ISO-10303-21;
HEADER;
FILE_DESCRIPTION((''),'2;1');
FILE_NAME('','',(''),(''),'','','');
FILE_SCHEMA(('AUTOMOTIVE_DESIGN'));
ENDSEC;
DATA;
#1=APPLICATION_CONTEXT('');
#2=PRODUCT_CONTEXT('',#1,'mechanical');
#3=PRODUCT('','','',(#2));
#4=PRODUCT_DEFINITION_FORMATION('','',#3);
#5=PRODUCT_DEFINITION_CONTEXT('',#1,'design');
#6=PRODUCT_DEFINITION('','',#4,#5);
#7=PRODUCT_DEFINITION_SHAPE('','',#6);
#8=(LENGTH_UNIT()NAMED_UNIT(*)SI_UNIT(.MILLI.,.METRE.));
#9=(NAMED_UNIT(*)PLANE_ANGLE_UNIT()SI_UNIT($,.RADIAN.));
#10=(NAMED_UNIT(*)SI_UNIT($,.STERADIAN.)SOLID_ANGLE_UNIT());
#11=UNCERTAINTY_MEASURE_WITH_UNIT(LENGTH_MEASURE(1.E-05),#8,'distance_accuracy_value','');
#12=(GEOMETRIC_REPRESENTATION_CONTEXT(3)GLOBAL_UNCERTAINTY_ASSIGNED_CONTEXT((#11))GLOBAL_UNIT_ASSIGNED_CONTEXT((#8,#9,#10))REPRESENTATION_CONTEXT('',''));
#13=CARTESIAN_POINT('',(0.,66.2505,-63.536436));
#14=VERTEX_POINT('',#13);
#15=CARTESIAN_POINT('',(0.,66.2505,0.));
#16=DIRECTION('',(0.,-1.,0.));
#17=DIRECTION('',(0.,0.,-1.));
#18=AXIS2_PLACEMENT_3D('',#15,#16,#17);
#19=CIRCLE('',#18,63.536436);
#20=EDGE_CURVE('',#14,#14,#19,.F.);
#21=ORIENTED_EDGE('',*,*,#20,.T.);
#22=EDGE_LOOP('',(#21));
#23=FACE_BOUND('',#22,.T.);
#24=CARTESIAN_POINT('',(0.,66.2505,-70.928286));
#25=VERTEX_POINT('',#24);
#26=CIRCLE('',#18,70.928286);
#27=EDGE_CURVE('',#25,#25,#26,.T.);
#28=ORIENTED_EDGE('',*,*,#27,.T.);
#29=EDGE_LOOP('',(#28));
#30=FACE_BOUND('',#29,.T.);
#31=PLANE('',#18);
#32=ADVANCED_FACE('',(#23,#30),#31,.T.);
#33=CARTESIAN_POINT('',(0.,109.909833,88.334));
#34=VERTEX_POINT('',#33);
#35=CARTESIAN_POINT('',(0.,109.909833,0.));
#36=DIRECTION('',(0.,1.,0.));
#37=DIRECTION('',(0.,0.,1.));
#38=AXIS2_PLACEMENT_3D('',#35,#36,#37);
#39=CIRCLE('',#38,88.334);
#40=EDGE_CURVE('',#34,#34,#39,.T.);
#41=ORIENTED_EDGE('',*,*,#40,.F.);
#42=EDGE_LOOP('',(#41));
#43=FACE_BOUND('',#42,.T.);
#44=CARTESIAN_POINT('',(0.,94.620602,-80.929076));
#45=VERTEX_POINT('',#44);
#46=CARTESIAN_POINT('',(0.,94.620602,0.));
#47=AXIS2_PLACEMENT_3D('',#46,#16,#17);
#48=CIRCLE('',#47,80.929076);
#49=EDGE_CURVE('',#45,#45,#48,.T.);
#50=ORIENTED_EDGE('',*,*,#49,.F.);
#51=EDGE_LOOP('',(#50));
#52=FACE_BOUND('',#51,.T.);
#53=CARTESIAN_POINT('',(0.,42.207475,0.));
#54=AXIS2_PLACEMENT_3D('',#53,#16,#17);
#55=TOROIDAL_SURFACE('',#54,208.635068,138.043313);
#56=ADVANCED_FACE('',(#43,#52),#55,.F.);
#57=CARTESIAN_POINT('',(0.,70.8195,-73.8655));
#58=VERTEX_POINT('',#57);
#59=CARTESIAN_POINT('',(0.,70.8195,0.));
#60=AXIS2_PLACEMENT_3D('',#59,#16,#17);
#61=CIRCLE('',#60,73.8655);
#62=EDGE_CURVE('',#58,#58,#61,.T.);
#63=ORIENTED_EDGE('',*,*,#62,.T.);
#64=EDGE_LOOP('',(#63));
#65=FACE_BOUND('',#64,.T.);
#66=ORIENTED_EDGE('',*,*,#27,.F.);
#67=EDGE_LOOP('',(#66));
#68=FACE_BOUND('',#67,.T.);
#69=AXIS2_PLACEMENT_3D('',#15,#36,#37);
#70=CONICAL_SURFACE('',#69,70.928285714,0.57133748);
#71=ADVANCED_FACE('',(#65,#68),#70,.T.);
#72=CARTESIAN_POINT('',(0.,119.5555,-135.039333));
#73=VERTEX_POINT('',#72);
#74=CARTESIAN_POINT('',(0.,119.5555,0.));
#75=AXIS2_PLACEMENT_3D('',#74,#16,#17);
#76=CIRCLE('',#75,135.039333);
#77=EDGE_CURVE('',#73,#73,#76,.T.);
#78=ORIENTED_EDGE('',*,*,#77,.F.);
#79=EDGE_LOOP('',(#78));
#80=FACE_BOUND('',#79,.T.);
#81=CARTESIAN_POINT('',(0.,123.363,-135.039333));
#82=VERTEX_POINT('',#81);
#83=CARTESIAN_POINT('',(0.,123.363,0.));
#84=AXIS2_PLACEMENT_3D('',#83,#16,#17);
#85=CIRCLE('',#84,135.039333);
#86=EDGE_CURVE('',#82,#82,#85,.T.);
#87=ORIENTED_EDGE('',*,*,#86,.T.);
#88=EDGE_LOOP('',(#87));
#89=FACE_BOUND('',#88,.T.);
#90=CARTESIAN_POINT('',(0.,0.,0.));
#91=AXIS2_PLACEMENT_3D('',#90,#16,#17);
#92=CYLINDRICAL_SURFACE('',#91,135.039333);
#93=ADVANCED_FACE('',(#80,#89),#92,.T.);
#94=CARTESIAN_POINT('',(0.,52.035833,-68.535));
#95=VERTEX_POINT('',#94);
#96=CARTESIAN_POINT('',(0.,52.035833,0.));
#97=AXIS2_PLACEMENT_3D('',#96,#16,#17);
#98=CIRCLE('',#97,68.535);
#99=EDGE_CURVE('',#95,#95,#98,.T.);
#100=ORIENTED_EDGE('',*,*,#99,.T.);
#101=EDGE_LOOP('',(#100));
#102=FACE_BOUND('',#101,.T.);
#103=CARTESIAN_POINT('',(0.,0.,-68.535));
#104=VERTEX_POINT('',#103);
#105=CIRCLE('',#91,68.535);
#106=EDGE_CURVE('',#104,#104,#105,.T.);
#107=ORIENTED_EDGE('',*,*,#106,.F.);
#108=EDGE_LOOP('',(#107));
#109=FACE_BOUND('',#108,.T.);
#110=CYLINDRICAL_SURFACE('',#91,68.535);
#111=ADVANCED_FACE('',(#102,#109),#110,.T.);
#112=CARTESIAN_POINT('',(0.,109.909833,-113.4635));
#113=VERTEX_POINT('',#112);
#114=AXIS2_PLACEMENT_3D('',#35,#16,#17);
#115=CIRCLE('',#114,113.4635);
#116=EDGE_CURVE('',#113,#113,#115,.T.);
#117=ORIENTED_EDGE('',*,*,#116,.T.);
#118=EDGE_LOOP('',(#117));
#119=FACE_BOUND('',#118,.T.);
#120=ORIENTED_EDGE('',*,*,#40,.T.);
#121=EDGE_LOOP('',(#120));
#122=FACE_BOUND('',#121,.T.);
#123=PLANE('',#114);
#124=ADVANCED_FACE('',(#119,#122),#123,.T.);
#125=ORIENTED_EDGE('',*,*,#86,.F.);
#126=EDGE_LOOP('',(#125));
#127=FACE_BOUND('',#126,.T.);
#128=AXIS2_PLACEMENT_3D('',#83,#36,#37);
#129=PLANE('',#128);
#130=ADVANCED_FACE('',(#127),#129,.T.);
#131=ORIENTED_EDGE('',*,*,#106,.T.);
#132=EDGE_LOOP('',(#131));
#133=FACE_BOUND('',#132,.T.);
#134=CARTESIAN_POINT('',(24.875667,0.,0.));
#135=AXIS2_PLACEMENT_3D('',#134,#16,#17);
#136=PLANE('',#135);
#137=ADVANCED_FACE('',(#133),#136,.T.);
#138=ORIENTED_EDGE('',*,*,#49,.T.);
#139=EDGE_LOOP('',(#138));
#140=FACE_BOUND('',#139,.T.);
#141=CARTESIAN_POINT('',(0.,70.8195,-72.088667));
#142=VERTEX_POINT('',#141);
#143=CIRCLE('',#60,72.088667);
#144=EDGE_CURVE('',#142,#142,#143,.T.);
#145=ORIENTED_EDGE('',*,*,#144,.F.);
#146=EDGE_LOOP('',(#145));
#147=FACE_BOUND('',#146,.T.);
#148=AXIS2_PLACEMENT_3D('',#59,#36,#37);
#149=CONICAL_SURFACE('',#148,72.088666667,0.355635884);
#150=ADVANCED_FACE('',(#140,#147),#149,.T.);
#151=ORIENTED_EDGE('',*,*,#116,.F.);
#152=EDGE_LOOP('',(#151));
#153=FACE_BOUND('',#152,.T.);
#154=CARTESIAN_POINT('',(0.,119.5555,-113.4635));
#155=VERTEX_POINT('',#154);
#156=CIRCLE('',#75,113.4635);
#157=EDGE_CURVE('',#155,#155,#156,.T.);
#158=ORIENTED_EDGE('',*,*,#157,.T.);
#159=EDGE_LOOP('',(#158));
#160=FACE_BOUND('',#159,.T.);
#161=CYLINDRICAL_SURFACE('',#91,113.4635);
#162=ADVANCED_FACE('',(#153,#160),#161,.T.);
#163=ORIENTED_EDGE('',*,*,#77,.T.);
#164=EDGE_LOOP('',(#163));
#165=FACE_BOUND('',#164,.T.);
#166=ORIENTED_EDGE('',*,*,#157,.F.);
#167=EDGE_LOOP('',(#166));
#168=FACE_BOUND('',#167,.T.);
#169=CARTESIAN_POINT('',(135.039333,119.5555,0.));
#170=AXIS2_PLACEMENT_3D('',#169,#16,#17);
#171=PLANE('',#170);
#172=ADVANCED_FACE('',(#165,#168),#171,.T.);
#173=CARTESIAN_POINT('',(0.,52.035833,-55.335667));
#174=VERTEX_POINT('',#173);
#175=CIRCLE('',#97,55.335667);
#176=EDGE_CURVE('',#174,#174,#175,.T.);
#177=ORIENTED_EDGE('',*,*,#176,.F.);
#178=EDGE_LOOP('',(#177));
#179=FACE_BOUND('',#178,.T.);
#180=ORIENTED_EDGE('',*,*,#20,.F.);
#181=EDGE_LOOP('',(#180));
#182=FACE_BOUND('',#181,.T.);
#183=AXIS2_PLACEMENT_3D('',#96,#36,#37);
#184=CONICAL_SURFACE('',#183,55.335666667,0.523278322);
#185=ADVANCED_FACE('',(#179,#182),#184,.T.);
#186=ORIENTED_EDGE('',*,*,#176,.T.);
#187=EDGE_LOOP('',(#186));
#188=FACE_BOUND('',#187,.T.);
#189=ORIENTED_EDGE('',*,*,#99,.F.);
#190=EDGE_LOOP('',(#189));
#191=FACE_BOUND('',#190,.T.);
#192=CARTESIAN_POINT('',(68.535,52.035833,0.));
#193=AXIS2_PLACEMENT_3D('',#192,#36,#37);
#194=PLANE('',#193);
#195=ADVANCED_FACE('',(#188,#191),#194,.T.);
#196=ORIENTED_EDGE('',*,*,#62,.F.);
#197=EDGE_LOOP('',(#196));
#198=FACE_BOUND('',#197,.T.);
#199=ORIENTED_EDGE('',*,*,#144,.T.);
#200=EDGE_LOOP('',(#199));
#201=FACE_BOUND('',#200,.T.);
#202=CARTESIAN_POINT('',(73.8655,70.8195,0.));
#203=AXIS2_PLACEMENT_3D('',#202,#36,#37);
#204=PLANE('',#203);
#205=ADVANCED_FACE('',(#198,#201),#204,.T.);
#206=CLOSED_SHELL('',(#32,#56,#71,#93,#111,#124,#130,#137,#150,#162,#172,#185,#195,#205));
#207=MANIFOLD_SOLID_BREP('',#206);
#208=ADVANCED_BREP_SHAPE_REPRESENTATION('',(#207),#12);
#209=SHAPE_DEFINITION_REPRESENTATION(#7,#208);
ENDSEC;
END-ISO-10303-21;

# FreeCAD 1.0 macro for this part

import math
import FreeCAD as App
import Part
import Sketcher
from FreeCAD import Vector


def add_polygon(sketch, points):
    """Adds a closed chain of lines whose ends are joined by coincident constraints."""
    first, n = sketch.GeometryCount, len(points)
    for a, b in zip(points, points[1:] + points[:1]):
        sketch.addGeometry(Part.LineSegment(App.Vector(*a, 0), App.Vector(*b, 0)), False)
    for i in range(n):
        sketch.addConstraint(Sketcher.Constraint("Coincident", first + i, 2, first + (i + 1) % n, 1))

doc = App.newDocument("Part")
body = doc.addObject("PartDesign::Body", "Body")

sketch1 = body.newObject("Sketcher::SketchObject", "Sketch")
sketch1.AttachmentSupport = (doc.getObject("XY_Plane"), [""])
sketch1.MapMode = "FlatFace"
add_polygon(sketch1, [(69, 0), (69, 52), (55, 52), (64, 66), (0, 66), (0, 0)])
sketch1.addConstraint([
    Sketcher.Constraint("Vertical", 0),
    Sketcher.Constraint("Horizontal", 1),
    Sketcher.Constraint("Horizontal", 3),
    Sketcher.Constraint("Vertical", 4),
    Sketcher.Constraint("Horizontal", 5),
    Sketcher.Constraint("Coincident", 4, 2, -1, 1),
    Sketcher.Constraint("DistanceX", 5, 1, 5, 2, 68.535),
    Sketcher.Constraint("DistanceY", 4, 2, 4, 1, 66.2505),
    Sketcher.Constraint("DistanceX", 1, 2, 1, 1, 13.199333),
    Sketcher.Constraint("DistanceX", 3, 2, 3, 1, 63.536436),
    Sketcher.Constraint("DistanceY", 0, 1, 0, 2, 52.035833),
])
revolution = body.newObject("PartDesign::Revolution", "Revolution")
revolution.Profile = sketch1
revolution.ReferenceAxis = (sketch1, ["V_Axis"])
revolution.Angle = 360

sketch2 = body.newObject("Sketcher::SketchObject", "Sketch001")
sketch2.AttachmentSupport = (doc.getObject("XY_Plane"), [""])
sketch2.MapMode = "FlatFace"
sketch2.addGeometry([
    Part.LineSegment(Vector(72.1, 70.8, 0), Vector(80.9, 94.6, 0)),
    Part.ArcOfCircle(Part.Circle(Vector(208.6, 42.2, 0), Vector(0, 0, 1), 138), math.radians(150.63), math.radians(157.69)),
    Part.LineSegment(Vector(88.3, 109.9, 0), Vector(0, 109.9, 0)),
    Part.LineSegment(Vector(0, 109.9, 0), Vector(0, 66.3, 0)),
    Part.LineSegment(Vector(0, 66.3, 0), Vector(70.9, 66.3, 0)),
    Part.LineSegment(Vector(70.9, 66.3, 0), Vector(73.9, 70.8, 0)),
    Part.LineSegment(Vector(73.9, 70.8, 0), Vector(72.1, 70.8, 0)),
], False)
sketch2.addConstraint([
    Sketcher.Constraint("Coincident", 0, 2, 1, 2),
    Sketcher.Constraint("Coincident", 1, 1, 2, 1),
    Sketcher.Constraint("Coincident", 2, 2, 3, 1),
    Sketcher.Constraint("Coincident", 3, 2, 4, 1),
    Sketcher.Constraint("Coincident", 4, 2, 5, 1),
    Sketcher.Constraint("Coincident", 5, 2, 6, 1),
    Sketcher.Constraint("Coincident", 6, 2, 0, 1),
    Sketcher.Constraint("Horizontal", 2),
    Sketcher.Constraint("Vertical", 3),
    Sketcher.Constraint("Horizontal", 4),
    Sketcher.Constraint("Horizontal", 6),
    Sketcher.Constraint("PointOnObject", 2, 2, -2),
    Sketcher.Constraint("DistanceX", 2, 2, 2, 1, 88.334),
    Sketcher.Constraint("Radius", 1, 138.043313),
    Sketcher.Constraint("DistanceY", 4, 2, 5, 2, 4.569),
    Sketcher.Constraint("DistanceY", -1, 1, 0, 2, 94.620602),
    Sketcher.Constraint("DistanceY", -1, 1, 3, 2, 66.2505),
    Sketcher.Constraint("DistanceX", -1, 1, 5, 2, 73.8655),
    Sketcher.Constraint("DistanceX", 4, 1, 4, 2, 70.928286),
    Sketcher.Constraint("DistanceX", 6, 2, 6, 1, 1.776833),
    Sketcher.Constraint("DistanceY", 3, 2, 3, 1, 43.659333),
    Sketcher.Constraint("DistanceX", -1, 1, 1, 3, 208.635068),
])
revolution2 = body.newObject("PartDesign::Revolution", "Revolution001")
revolution2.Profile = sketch2
revolution2.ReferenceAxis = (sketch2, ["V_Axis"])
revolution2.Angle = 360

sketch3 = body.newObject("Sketcher::SketchObject", "Sketch002")
sketch3.AttachmentSupport = (doc.getObject("XY_Plane"), [""])
sketch3.MapMode = "FlatFace"
add_polygon(sketch3, [(0, 109.9), (113.5, 109.9), (113.5, 119.6), (135, 119.6), (135, 123.4), (0, 123.4)])
sketch3.addConstraint([
    Sketcher.Constraint("Horizontal", 0),
    Sketcher.Constraint("Vertical", 1),
    Sketcher.Constraint("Horizontal", 2),
    Sketcher.Constraint("Vertical", 3),
    Sketcher.Constraint("Horizontal", 4),
    Sketcher.Constraint("Vertical", 5),
    Sketcher.Constraint("PointOnObject", 4, 2, -2),
    Sketcher.Constraint("DistanceX", 0, 1, 0, 2, 113.4635),
    Sketcher.Constraint("DistanceY", 3, 1, 3, 2, 3.8075),
    Sketcher.Constraint("DistanceY", -1, 1, 3, 2, 123.363),
    Sketcher.Constraint("DistanceX", 2, 1, 2, 2, 21.575833),
    Sketcher.Constraint("DistanceY", 1, 1, 1, 2, 9.645667),
])
revolution3 = body.newObject("PartDesign::Revolution", "Revolution002")
revolution3.Profile = sketch3
revolution3.ReferenceAxis = (sketch3, ["V_Axis"])
revolution3.Angle = 360

doc.recompute()
